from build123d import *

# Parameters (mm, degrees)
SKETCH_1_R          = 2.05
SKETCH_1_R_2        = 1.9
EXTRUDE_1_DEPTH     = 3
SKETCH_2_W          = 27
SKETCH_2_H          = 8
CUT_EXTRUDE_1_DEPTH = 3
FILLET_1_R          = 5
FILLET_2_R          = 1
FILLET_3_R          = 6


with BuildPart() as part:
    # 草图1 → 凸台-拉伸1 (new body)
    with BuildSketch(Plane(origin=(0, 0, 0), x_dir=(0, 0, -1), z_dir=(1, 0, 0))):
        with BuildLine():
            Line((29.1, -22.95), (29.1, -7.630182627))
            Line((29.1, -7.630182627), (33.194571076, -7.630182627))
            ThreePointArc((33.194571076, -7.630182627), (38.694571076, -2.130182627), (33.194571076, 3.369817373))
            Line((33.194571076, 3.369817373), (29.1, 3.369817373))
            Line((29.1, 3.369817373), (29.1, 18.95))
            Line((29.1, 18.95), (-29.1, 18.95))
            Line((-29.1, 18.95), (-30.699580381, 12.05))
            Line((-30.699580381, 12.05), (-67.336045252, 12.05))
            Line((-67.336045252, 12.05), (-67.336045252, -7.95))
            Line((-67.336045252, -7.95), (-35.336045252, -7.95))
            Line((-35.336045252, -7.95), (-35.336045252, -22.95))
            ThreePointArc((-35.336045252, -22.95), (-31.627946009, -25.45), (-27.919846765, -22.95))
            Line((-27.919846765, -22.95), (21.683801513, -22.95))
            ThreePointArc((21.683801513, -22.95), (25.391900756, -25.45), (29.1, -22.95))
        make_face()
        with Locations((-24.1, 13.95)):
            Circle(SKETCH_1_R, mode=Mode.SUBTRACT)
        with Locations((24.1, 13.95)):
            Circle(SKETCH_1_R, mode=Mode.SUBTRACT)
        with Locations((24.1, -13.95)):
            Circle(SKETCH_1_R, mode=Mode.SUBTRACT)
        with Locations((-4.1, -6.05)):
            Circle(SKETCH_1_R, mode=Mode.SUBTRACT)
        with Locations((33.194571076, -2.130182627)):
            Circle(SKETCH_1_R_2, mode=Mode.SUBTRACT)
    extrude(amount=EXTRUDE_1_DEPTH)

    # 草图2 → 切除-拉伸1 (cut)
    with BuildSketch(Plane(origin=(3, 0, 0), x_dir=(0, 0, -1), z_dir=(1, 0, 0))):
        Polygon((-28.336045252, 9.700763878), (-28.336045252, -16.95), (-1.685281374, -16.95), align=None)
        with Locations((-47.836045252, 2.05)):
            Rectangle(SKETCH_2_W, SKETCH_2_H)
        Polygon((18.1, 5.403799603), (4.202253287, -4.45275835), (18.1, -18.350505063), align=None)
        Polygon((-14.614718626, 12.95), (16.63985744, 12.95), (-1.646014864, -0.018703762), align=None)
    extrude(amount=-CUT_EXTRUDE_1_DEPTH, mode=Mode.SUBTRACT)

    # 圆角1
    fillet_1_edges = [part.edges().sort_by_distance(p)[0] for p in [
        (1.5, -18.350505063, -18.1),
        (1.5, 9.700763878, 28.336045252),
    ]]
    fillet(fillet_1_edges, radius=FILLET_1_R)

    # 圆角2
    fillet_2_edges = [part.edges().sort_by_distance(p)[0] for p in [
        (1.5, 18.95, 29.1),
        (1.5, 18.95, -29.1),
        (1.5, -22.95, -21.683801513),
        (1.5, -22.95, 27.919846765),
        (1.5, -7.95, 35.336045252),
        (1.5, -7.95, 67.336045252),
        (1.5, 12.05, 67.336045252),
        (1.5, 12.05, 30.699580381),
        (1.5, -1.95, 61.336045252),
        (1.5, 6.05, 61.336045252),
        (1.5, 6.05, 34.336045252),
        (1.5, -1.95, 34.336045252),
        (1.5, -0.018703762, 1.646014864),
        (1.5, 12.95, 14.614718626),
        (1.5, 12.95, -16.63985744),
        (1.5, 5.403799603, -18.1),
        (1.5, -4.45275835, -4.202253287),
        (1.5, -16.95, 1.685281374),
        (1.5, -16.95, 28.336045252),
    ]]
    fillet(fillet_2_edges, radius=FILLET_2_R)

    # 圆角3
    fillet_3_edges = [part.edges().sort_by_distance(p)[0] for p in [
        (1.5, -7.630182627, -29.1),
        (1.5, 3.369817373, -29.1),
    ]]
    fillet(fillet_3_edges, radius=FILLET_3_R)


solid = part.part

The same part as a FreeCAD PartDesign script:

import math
import FreeCAD as App
import Part
import Sketcher

V = App.Vector


def edges_at(feature, points):
    """Names of the edges that pass closest to the given points."""
    edges = feature.Shape.Edges
    near = lambda p: min(range(len(edges)), key=lambda i: edges[i].distToShape(Part.Vertex(*p))[0])
    return sorted({f"Edge{near(p) + 1}" for p in points})


def add_polygon(sketch, points):
    """Adds a closed chain of lines whose ends are joined by coincident constraints."""
    first, n = sketch.GeometryCount, len(points)
    for a, b in zip(points, points[1:] + points[:1]):
        sketch.addGeometry(Part.LineSegment(App.Vector(*a, 0), App.Vector(*b, 0)), False)
    for i in range(n):
        sketch.addConstraint(Sketcher.Constraint("Coincident", first + i, 2, first + (i + 1) % n, 1))

doc = App.newDocument("Part")
body = doc.addObject("PartDesign::Body", "Body")

# Sketch on YZ plane
sketch1 = doc.addObject("Sketcher::SketchObject", "Sketch")
body.addObject(sketch1)
sketch1.AttachmentSupport = (doc.YZ_Plane, [""])
sketch1.MapMode = "FlatFace"
sketch1.addGeometry([
    Part.LineSegment(V(-22.9, -29.1, 0), V(-7.6, -29.1, 0)),  # 0
    Part.LineSegment(V(-7.6, -29.1, 0), V(-7.6, -33.2, 0)),  # 1
    Part.ArcOfCircle(Part.Circle(V(-2.1, -33.2, 0), V(0, 0, 1), 5.5), math.radians(180), math.radians(360)),  # 2
    Part.LineSegment(V(3.4, -33.2, 0), V(3.4, -29.1, 0)),  # 3
    Part.LineSegment(V(3.4, -29.1, 0), V(18.9, -29.1, 0)),  # 4
    Part.LineSegment(V(18.9, -29.1, 0), V(18.9, 29.1, 0)),  # 5
    Part.LineSegment(V(18.9, 29.1, 0), V(12.1, 30.7, 0)),  # 6
    Part.LineSegment(V(12.1, 30.7, 0), V(12.1, 67.3, 0)),  # 7
    Part.LineSegment(V(12.1, 67.3, 0), V(-8, 67.3, 0)),  # 8
    Part.LineSegment(V(-8, 67.3, 0), V(-8, 35.3, 0)),  # 9
    Part.LineSegment(V(-8, 35.3, 0), V(-22.9, 35.3, 0)),  # 10
    Part.ArcOfCircle(Part.Circle(V(-21.4, 31.6, 0), V(0, 0, 1), 4), math.radians(112), math.radians(248)),  # 11
    Part.LineSegment(V(-22.9, 27.9, 0), V(-22.9, -21.7, 0)),  # 12
    Part.ArcOfCircle(Part.Circle(V(-21.4, -25.4, 0), V(0, 0, 1), 4), math.radians(112), math.radians(248)),  # 13
    Part.Circle(V(-6, 4.1, 0), V(0, 0, 1), 2),  # 14
    Part.Circle(V(-13.9, -24.1, 0), V(0, 0, 1), 2),  # 15
    Part.Circle(V(-2.1, -33.2, 0), V(0, 0, 1), 1.9),  # 16
    Part.Circle(V(13.9, 24.1, 0), V(0, 0, 1), 2),  # 17
    Part.Circle(V(13.9, -24.1, 0), V(0, 0, 1), 2),  # 18
], False)
sketch1.addConstraint([
    Sketcher.Constraint("Coincident", 0, 2, 1, 1),
    Sketcher.Constraint("Tangent", 1, 2, 2, 1),
    Sketcher.Constraint("Tangent", 2, 2, 3, 1),
    Sketcher.Constraint("Coincident", 3, 2, 4, 1),
    Sketcher.Constraint("Coincident", 4, 2, 5, 1),
    Sketcher.Constraint("Coincident", 5, 2, 6, 1),
    Sketcher.Constraint("Coincident", 6, 2, 7, 1),
    Sketcher.Constraint("Coincident", 7, 2, 8, 1),
    Sketcher.Constraint("Coincident", 8, 2, 9, 1),
    Sketcher.Constraint("Coincident", 9, 2, 10, 1),
    Sketcher.Constraint("Coincident", 10, 2, 11, 1),
    Sketcher.Constraint("Coincident", 11, 2, 12, 1),
    Sketcher.Constraint("Coincident", 12, 2, 13, 1),
    Sketcher.Constraint("Coincident", 13, 2, 0, 1),
    Sketcher.Constraint("Horizontal", 0),
    Sketcher.Constraint("Vertical", 1),
    Sketcher.Constraint("Vertical", 3),
    Sketcher.Constraint("Horizontal", 4),
    Sketcher.Constraint("Vertical", 5),
    Sketcher.Constraint("Vertical", 7),
    Sketcher.Constraint("Horizontal", 8),
    Sketcher.Constraint("Vertical", 9),
    Sketcher.Constraint("Horizontal", 10),
    Sketcher.Constraint("Vertical", 12),
    Sketcher.Constraint("Coincident", 16, 3, 2, 3),
    Sketcher.Constraint("Equal", 11, 13),
    Sketcher.Constraint("Equal", 14, 15),
    Sketcher.Constraint("Equal", 15, 17),
    Sketcher.Constraint("Equal", 17, 18),
    Sketcher.Constraint("Symmetric", 15, 3, 17, 3, -1, 1),
    Sketcher.Constraint("Symmetric", 15, 3, 18, 3, -2),
    Sketcher.Constraint("Horizontal", 0, 2, 3, 2),
    Sketcher.Constraint("Vertical", 11, 3, 13, 3),
    Sketcher.Constraint("Vertical", 10, 2, 11, 2),
    Sketcher.Constraint("Vertical", 12, 2, 13, 2),
    Sketcher.Constraint("Radius", 11, 4.0),
    Sketcher.Constraint("Diameter", 14, 4.1),
    Sketcher.Constraint("Diameter", 16, 3.8),
    Sketcher.Constraint("Radius", 2, 5.5),
    Sketcher.Constraint("DistanceX", 8, 2, 8, 1, 20.0),
    Sketcher.Constraint("DistanceX", 10, 2, 10, 1, 15.0),
    Sketcher.Constraint("DistanceY", 9, 2, 9, 1, 32.0),
    Sketcher.Constraint("DistanceY", 5, 1, 5, 2, 58.2),
    Sketcher.Constraint("DistanceX", 14, 3, 17, 3, 20.0),
    Sketcher.Constraint("DistanceY", 14, 3, 17, 3, 20.0),
    Sketcher.Constraint("DistanceY", 0, 2, 15, 3, 5.0),
    Sketcher.Constraint("DistanceX", 18, 3, 4, 2, 5.0),
    Sketcher.Constraint("DistanceY", 17, 3, 5, 2, 5.0),
    Sketcher.Constraint("DistanceX", 12, 2, 15, 3, 9.0),
    Sketcher.Constraint("DistanceX", 11, 3, 14, 3, 15.4),
    Sketcher.Constraint("DistanceX", 13, 3, 15, 3, 7.5),
    Sketcher.Constraint("DistanceY", 1, 2, 1, 1, 4.094571),
    Sketcher.Constraint("DistanceY", 12, 2, 12, 1, 49.603648),
    Sketcher.Constraint("DistanceX", 0, 1, 0, 2, 15.319817),
    Sketcher.Constraint("DistanceY", 7, 1, 7, 2, 36.636465),
])
pad1 = doc.addObject("PartDesign::Pad", "Pad")
body.addObject(pad1)
pad1.Profile = sketch1
pad1.Length = 3

# Sketch on YZ plane
sketch2 = doc.addObject("Sketcher::SketchObject", "Sketch001")
body.addObject(sketch2)
sketch2.AttachmentSupport = (doc.YZ_Plane, [""])
sketch2.MapMode = "FlatFace"
sketch2.AttachmentOffset = App.Placement(V(0, 0, 3), App.Rotation())
add_polygon(sketch2, [(10, 28), (-17, 28), (-17, 2)])  # lines 0-2
add_polygon(sketch2, [(6, 61), (-2, 61), (-2, 34), (6, 34)])  # lines 3-6
add_polygon(sketch2, [(5, -18), (-4, -4), (-18, -18)])  # lines 7-9
add_polygon(sketch2, [(13, -17), (13, 15), (0, 2)])  # lines 10-12
sketch2.addConstraint([
    Sketcher.Constraint("Horizontal", 0),
    Sketcher.Constraint("Vertical", 1),
    Sketcher.Constraint("Horizontal", 3),
    Sketcher.Constraint("Vertical", 4),
    Sketcher.Constraint("Horizontal", 5),
    Sketcher.Constraint("Vertical", 6),
    Sketcher.Constraint("Horizontal", 9),
    Sketcher.Constraint("Vertical", 10),
    Sketcher.Constraint("Parallel", 2, 8),
    Sketcher.Constraint("Parallel", 8, 11),
    Sketcher.Constraint("Parallel", 7, 12),
    Sketcher.Constraint("Equal", 0, 1),
    Sketcher.Constraint("DistanceX", 3, 2, 3, 1, 8.0),
    Sketcher.Constraint("DistanceY", 4, 2, 4, 1, 27.0),
    Sketcher.Constraint("DistanceY", 2, 2, 3, 2, 33.0),
    Sketcher.Constraint("DistanceX", 0, 2, 3, 2, 15.0),
    Sketcher.Constraint("DistanceY", 8, 2, -1, 1, 18.1),
    Sketcher.Constraint("DistanceX", 5, 2, 10, 2, 6.9),
    Sketcher.Constraint("DistanceX", 0, 2, -1, 1, 16.95),
    Sketcher.Constraint("DistanceX", -1, 1, 9, 2, 5.4038),
    Sketcher.Constraint("DistanceY", 7, 2, 0, 2, 32.538299),
    Sketcher.Constraint("DistanceX", 8, 2, 11, 2, 18.331801),
    Sketcher.Constraint("Distance", 2, 37.689872),
    Sketcher.Constraint("Distance", 8, 19.654382),
    Sketcher.Constraint("Distance", 12, 22.417859),
    Sketcher.Constraint("DistanceY", -1, 1, 10, 2, 14.614719),
])
pocket1 = doc.addObject("PartDesign::Pocket", "Pocket")
body.addObject(pocket1)
pocket1.Profile = sketch2
pocket1.Length = 3
doc.recompute()

fillet = doc.addObject("PartDesign::Fillet", "Fillet")
body.addObject(fillet)
fillet.Base = (pocket1, edges_at(pocket1, [(1.5, -18.351, -18.1), (1.5, 9.701, 28.336)]))
fillet.Radius = 5
doc.recompute()

fillet2 = doc.addObject("PartDesign::Fillet", "Fillet001")
body.addObject(fillet2)
fillet2.Base = (fillet, edges_at(fillet, [
    (1.5, 18.95, 29.1),
    (1.5, 18.95, -29.1),
    (1.5, -22.95, -21.684),
    (1.5, -22.95, 27.92),
    (1.5, -7.95, 35.336),
    (1.5, -7.95, 67.336),
    (1.5, 12.05, 67.336),
    (1.5, 12.05, 30.7),
    (1.5, -1.95, 61.336),
    (1.5, 6.05, 61.336),
    (1.5, 6.05, 34.336),
    (1.5, -1.95, 34.336),
    (1.5, -0.019, 1.646),
    (1.5, 12.95, 14.615),
    (1.5, 12.95, -16.64),
    (1.5, 5.404, -18.1),
    (1.5, -4.453, -4.202),
    (1.5, -16.95, 1.685),
    (1.5, -16.95, 28.336),
]))
fillet2.Radius = 1
doc.recompute()

fillet3 = doc.addObject("PartDesign::Fillet", "Fillet002")
body.addObject(fillet3)
fillet3.Base = (fillet2, edges_at(fillet2, [(1.5, -7.63, -29.1), (1.5, 3.37, -29.1)]))
fillet3.Radius = 6

doc.recompute()
